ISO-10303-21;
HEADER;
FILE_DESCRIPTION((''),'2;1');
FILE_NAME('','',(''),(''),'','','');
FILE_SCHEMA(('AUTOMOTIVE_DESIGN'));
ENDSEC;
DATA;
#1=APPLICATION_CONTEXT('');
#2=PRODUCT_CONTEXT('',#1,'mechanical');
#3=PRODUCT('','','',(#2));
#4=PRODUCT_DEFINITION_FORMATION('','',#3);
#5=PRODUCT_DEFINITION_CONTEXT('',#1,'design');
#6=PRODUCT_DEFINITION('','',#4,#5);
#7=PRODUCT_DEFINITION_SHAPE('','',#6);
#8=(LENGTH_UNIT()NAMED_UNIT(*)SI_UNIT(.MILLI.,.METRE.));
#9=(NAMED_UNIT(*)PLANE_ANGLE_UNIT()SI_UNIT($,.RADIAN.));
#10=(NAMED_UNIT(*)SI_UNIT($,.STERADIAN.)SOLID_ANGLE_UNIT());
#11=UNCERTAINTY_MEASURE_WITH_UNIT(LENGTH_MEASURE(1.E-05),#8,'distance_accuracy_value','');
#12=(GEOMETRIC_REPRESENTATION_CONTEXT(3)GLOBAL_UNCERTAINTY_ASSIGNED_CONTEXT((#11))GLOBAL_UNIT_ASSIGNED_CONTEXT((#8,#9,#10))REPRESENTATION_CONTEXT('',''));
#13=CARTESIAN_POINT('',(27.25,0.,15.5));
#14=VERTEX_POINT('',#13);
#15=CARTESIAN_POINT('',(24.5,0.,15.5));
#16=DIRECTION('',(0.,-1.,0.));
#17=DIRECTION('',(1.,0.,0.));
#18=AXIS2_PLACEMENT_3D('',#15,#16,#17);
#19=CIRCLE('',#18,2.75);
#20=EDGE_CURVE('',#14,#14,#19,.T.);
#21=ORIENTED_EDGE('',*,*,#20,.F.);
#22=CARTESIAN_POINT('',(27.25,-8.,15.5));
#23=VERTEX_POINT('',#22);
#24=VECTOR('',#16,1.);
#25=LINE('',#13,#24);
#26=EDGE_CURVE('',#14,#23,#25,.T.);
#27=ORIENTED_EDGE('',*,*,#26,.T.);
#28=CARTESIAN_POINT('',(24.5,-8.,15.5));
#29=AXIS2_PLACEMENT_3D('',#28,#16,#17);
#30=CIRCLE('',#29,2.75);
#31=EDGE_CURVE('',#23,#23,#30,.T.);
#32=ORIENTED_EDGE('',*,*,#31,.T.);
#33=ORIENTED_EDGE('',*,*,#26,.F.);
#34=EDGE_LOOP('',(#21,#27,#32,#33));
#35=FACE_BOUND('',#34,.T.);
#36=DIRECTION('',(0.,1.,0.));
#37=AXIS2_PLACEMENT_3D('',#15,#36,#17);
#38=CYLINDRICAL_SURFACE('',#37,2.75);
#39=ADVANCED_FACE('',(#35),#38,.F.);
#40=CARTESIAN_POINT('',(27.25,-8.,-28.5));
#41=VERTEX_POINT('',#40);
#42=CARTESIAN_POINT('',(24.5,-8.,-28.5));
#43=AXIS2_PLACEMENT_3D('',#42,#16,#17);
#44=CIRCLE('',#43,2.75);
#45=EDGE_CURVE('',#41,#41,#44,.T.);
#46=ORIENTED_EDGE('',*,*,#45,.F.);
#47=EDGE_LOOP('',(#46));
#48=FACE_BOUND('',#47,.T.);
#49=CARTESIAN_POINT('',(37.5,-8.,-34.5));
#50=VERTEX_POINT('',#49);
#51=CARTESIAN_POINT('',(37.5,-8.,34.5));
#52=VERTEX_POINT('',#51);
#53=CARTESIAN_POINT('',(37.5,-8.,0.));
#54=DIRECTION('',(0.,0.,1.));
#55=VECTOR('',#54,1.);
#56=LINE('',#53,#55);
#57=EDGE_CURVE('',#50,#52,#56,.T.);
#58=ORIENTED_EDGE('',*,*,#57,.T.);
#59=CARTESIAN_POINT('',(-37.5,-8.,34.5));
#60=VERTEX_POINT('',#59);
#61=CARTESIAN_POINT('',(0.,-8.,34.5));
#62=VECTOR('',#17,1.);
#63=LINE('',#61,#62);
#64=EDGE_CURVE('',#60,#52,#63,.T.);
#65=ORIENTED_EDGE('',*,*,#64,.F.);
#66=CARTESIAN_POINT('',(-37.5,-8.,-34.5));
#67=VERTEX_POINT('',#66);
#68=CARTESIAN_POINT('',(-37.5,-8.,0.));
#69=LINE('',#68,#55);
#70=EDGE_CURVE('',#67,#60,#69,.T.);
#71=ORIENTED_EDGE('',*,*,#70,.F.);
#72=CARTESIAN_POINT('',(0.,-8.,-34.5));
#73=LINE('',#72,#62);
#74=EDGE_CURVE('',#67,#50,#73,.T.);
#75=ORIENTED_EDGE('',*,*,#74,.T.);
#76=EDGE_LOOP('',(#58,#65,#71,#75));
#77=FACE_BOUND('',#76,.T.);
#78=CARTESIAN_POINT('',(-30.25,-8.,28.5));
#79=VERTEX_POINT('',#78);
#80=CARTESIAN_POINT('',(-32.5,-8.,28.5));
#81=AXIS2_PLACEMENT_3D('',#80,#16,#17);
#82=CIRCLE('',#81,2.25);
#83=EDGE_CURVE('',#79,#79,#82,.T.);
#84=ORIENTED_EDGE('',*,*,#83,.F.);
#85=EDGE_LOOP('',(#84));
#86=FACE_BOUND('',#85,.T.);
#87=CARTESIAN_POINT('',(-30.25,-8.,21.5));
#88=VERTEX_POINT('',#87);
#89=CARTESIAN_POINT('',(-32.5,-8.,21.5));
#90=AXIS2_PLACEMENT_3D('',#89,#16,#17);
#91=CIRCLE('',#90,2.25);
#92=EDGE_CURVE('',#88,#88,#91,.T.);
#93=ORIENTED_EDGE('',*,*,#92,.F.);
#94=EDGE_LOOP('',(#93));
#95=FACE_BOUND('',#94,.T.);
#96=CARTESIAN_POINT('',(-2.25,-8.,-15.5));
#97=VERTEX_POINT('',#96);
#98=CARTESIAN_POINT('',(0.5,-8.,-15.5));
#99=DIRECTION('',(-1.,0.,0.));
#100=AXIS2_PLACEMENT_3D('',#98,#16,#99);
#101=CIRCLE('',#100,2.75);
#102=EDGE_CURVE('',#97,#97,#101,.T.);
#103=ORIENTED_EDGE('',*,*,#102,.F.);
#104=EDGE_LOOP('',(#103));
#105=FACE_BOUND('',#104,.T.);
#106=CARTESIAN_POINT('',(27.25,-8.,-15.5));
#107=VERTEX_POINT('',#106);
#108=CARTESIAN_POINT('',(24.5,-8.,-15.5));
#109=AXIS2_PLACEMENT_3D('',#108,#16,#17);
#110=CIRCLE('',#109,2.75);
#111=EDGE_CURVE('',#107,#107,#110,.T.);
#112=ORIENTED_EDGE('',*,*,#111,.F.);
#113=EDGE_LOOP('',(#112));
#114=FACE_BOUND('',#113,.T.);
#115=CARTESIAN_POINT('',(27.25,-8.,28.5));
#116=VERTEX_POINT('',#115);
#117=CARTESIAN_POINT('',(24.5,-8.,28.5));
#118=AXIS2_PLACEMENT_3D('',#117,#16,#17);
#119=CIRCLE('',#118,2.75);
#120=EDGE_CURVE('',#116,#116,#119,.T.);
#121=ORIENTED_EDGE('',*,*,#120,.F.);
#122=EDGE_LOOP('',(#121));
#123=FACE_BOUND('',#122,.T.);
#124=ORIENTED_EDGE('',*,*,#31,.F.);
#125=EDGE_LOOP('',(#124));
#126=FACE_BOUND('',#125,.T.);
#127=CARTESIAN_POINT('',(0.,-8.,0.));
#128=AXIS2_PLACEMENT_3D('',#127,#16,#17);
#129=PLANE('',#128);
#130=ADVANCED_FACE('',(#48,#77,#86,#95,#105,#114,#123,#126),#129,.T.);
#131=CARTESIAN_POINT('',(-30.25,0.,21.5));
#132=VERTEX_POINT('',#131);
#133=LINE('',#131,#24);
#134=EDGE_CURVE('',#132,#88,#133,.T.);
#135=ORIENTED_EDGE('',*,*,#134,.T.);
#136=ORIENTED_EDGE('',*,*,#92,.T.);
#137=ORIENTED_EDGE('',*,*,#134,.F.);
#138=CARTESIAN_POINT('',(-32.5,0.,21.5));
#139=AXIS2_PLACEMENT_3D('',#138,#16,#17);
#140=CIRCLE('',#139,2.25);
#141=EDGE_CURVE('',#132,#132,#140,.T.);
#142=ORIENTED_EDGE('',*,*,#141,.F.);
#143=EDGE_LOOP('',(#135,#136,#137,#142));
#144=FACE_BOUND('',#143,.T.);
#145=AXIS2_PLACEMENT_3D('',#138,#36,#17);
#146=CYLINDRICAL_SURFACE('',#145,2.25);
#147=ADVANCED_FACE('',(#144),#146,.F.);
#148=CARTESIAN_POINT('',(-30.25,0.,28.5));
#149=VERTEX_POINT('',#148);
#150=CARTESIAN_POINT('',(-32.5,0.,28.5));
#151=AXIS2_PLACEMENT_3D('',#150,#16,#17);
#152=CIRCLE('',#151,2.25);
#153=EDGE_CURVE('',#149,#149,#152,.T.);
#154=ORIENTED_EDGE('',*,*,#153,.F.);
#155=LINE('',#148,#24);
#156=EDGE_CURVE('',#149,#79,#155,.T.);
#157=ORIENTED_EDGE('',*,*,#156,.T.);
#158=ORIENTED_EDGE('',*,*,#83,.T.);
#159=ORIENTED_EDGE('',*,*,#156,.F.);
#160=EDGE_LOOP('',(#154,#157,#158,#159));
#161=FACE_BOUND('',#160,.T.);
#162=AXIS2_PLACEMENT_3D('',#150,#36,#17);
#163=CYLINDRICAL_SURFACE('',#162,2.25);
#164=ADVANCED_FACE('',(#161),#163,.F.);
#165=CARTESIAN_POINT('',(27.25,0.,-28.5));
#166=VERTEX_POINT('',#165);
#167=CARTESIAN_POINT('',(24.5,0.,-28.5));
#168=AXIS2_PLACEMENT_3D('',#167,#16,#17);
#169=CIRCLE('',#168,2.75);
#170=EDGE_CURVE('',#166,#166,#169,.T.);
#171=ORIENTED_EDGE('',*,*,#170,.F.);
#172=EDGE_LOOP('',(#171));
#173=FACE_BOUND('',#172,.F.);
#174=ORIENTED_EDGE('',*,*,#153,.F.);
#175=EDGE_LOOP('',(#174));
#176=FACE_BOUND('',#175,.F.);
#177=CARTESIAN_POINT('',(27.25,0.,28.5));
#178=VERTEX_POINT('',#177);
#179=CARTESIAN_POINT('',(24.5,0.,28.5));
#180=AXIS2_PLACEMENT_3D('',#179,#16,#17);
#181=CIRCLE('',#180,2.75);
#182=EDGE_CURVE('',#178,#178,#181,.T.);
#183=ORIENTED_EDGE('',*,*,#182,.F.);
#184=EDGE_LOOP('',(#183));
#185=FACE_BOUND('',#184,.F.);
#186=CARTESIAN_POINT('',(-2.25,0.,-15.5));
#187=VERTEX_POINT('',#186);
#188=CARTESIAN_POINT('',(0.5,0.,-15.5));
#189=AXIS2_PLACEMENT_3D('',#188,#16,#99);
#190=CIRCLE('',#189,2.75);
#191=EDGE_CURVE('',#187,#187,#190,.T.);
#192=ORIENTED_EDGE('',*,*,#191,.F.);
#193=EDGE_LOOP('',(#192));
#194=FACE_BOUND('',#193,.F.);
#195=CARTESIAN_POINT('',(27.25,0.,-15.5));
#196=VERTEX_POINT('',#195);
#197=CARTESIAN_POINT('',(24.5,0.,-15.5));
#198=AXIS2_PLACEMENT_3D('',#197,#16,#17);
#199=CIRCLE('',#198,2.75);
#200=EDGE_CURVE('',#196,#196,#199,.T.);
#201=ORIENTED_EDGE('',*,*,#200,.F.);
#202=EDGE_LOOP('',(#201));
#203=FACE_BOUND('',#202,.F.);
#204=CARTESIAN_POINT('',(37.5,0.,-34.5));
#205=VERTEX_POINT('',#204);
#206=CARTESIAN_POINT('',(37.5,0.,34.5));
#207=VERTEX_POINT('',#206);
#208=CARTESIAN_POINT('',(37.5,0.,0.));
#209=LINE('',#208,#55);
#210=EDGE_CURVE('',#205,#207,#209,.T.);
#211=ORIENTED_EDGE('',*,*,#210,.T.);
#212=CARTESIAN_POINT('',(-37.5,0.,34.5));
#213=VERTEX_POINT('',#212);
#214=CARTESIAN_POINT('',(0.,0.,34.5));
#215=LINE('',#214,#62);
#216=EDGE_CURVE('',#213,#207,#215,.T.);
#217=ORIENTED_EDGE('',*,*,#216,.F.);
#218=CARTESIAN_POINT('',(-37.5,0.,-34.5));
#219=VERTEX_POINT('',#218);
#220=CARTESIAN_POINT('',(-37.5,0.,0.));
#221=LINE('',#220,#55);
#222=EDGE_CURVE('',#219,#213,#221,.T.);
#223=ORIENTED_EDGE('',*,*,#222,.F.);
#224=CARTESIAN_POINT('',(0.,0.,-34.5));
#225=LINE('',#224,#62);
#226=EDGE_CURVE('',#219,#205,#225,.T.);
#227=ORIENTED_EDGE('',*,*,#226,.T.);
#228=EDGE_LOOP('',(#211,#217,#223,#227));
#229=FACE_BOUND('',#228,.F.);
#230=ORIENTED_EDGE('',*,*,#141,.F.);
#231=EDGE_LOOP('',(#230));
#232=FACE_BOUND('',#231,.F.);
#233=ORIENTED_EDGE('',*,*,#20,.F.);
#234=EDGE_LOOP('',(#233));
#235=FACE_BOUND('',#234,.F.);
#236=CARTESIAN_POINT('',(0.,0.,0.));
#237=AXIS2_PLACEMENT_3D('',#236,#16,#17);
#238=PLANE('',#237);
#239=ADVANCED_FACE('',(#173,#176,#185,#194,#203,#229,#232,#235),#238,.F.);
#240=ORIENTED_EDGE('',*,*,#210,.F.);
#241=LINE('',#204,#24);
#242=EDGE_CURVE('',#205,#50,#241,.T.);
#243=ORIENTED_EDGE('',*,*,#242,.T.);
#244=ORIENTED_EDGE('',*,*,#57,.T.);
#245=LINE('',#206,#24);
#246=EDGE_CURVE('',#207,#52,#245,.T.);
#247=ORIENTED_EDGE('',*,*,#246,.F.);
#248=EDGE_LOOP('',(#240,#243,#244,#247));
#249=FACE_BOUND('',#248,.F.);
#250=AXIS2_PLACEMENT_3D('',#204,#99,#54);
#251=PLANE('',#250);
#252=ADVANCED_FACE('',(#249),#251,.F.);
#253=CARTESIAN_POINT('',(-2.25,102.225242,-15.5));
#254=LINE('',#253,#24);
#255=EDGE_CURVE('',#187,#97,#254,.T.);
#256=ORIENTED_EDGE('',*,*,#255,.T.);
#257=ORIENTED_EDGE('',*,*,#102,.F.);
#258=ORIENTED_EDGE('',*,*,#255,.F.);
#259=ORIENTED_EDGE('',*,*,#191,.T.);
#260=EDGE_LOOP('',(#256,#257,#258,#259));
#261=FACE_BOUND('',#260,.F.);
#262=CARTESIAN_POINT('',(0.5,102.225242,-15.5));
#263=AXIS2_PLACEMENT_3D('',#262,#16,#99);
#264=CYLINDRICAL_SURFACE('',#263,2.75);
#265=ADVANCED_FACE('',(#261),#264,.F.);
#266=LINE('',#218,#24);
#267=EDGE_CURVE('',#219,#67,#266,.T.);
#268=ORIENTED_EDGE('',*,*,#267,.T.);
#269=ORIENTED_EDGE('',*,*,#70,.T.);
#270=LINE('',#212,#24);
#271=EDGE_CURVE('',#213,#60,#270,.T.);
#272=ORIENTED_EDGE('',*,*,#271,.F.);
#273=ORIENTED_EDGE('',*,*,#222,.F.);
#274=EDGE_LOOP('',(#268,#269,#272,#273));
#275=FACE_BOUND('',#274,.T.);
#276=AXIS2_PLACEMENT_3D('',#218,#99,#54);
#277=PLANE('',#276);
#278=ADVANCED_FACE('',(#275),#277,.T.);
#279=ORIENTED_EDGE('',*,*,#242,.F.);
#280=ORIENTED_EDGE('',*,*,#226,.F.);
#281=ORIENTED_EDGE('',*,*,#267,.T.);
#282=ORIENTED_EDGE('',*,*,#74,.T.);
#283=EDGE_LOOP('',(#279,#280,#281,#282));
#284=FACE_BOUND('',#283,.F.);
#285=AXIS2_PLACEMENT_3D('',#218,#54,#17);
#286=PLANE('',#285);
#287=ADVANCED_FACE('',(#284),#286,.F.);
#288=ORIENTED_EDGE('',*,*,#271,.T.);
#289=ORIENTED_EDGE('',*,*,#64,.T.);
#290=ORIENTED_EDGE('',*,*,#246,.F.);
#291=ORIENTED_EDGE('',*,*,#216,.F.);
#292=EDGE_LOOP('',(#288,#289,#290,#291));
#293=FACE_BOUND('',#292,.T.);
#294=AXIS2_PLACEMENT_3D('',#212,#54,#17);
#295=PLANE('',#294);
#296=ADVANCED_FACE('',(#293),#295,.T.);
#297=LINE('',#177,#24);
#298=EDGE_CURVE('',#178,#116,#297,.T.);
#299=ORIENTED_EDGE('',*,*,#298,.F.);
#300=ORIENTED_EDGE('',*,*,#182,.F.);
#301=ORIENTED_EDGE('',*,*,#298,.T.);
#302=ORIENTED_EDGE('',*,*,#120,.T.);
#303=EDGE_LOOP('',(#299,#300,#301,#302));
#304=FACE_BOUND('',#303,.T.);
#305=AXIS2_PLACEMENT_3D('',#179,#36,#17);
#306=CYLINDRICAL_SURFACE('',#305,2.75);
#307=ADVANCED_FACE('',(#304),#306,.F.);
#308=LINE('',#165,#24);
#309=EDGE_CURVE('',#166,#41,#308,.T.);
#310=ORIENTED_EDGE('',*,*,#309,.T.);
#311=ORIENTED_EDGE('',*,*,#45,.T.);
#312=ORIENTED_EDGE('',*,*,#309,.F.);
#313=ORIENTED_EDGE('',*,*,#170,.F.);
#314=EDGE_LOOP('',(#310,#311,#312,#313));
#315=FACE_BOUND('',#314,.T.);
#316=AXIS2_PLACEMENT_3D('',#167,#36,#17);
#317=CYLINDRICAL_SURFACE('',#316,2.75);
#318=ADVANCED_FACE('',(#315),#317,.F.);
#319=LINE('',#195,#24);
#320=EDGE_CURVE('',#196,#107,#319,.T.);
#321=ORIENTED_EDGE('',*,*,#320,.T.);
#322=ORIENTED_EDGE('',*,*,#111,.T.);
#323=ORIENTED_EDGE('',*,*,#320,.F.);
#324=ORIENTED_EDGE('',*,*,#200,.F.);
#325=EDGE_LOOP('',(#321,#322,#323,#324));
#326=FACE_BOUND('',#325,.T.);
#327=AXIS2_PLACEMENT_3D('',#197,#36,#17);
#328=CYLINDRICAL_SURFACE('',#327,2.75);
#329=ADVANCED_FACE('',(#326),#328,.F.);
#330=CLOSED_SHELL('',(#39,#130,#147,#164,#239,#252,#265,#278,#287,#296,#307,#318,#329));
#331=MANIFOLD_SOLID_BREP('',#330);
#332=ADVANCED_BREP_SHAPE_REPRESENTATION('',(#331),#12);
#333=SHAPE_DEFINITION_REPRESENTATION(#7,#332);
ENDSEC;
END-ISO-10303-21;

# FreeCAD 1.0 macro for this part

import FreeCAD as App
import Part
import Sketcher

doc = App.newDocument("Part")
params = doc.addObject("Spreadsheet::Sheet", "Params")
for row, (alias, value) in enumerate([
    ("sketch1_diameter", "5.5 mm"),
    ("sketch1_diameter2", "4.5 mm"),
    ("sketch1_width", "75 mm"),
    ("sketch1_height", "69 mm"),
    ("pad1_length", "8 mm"),
    ("sketch2_diameter", "5.5 mm"),
    ("hole_diameter", "5.5 mm"),
], start=1):
    params.set(f"A{row}", alias)
    params.set(f"B{row}", "=" + value)
    params.setAlias(f"B{row}", alias)

body = doc.addObject("PartDesign::Body", "Body")

# Sketch on XZ plane
sketch1 = body.newObject("Sketcher::SketchObject", "Sketch")
sketch1.AttachmentSupport = (doc.getObject("XZ_Plane"), [""])
sketch1.MapMode = "FlatFace"
sketch1.addGeometry([
    Part.LineSegment(App.Vector(-37.5, 34.5, 0), App.Vector(-37.5, -34.5, 0)),  # 0
    Part.LineSegment(App.Vector(-37.5, -34.5, 0), App.Vector(37.5, -34.5, 0)),  # 1
    Part.LineSegment(App.Vector(37.5, -34.5, 0), App.Vector(37.5, 34.5, 0)),  # 2
    Part.LineSegment(App.Vector(37.5, 34.5, 0), App.Vector(-37.5, 34.5, 0)),  # 3
    Part.Circle(App.Vector(24.5, -28.5, 0), App.Vector(0, 0, 1), 2.75),  # 4
    Part.Circle(App.Vector(24.5, -15.5, 0), App.Vector(0, 0, 1), 2.75),  # 5
    Part.Circle(App.Vector(-32.5, 21.5, 0), App.Vector(0, 0, 1), 2.25),  # 6
    Part.Circle(App.Vector(-32.5, 28.5, 0), App.Vector(0, 0, 1), 2.25),  # 7
    Part.Circle(App.Vector(24.5, 15.5, 0), App.Vector(0, 0, 1), 2.75),  # 8
    Part.Circle(App.Vector(24.5, 28.5, 0), App.Vector(0, 0, 1), 2.75),  # 9
], False)
sketch1.addConstraint([
    Sketcher.Constraint("Coincident", 0, 2, 1, 1),
    Sketcher.Constraint("Coincident", 1, 2, 2, 1),
    Sketcher.Constraint("Coincident", 2, 2, 3, 1),
    Sketcher.Constraint("Coincident", 3, 2, 0, 1),
    Sketcher.Constraint("Vertical", 0),
    Sketcher.Constraint("Horizontal", 1),
    Sketcher.Constraint("Vertical", 2),
    Sketcher.Constraint("Horizontal", 3),
    Sketcher.Constraint("Equal", 4, 5),
    Sketcher.Constraint("Equal", 6, 7),
    Sketcher.Constraint("Equal", 5, 8),
    Sketcher.Constraint("Equal", 8, 9),
    Sketcher.Constraint("Symmetric", 0, 2, 2, 2, -1, 1),
    Sketcher.Constraint("Symmetric", 5, 3, 8, 3, -1),
    Sketcher.Constraint("Symmetric", 4, 3, 9, 3, -1),
    Sketcher.Constraint("Horizontal", 7, 3, 9, 3),
    Sketcher.Constraint("Vertical", 4, 3, 5, 3),
    Sketcher.Constraint("Vertical", 6, 3, 7, 3),
    Sketcher.Constraint("Diameter", 4, 5.5),
    Sketcher.Constraint("Diameter", 6, 4.5),
    Sketcher.Constraint("DistanceX", 1, 1, 1, 2, 75.0),
    Sketcher.Constraint("DistanceY", 0, 2, 0, 1, 69.0),
    Sketcher.Constraint("DistanceY", 4, 3, 5, 3, 13.0),
    Sketcher.Constraint("DistanceX", 6, 3, 5, 3, 57.0),
    Sketcher.Constraint("DistanceY", 5, 3, 6, 3, 37.0),
    Sketcher.Constraint("DistanceY", 6, 3, 7, 3, 7.0),
    Sketcher.Constraint("DistanceX", 0, 2, 6, 3, 5.0),
])
sketch1.setExpression("Constraints[18]", "Params.sketch1_diameter")
sketch1.setExpression("Constraints[19]", "Params.sketch1_diameter2")
sketch1.setExpression("Constraints[20]", "Params.sketch1_width")
sketch1.setExpression("Constraints[21]", "Params.sketch1_height")
pad1 = body.newObject("PartDesign::Pad", "Pad")
pad1.Profile = sketch1
pad1.setExpression("Length", "Params.pad1_length")

# Sketch on XZ plane
sketch2 = body.newObject("Sketcher::SketchObject", "Sketch001")
sketch2.AttachmentSupport = (doc.getObject("XZ_Plane"), [""])
sketch2.MapMode = "FlatFace"
sketch2.addGeometry(Part.Circle(App.Vector(0.5, -15.5, 0), App.Vector(0, 0, 1), 2.75), False)
sketch2.addConstraint([
    Sketcher.Constraint("Diameter", 0, 5.5),
    Sketcher.Constraint("DistanceX", -1, 1, 0, 3, 0.5),
    Sketcher.Constraint("DistanceY", 0, 3, -1, 1, 15.5),
])
sketch2.setExpression("Constraints[0]", "Params.sketch2_diameter")
doc.recompute()
hole = body.newObject("PartDesign::Hole", "Hole")
hole.Profile = sketch2
hole.ThreadType = "None"
hole.setExpression("Diameter", "Params.hole_diameter")
hole.DepthType = "ThroughAll"
hole.Reversed = True

doc.recompute()
